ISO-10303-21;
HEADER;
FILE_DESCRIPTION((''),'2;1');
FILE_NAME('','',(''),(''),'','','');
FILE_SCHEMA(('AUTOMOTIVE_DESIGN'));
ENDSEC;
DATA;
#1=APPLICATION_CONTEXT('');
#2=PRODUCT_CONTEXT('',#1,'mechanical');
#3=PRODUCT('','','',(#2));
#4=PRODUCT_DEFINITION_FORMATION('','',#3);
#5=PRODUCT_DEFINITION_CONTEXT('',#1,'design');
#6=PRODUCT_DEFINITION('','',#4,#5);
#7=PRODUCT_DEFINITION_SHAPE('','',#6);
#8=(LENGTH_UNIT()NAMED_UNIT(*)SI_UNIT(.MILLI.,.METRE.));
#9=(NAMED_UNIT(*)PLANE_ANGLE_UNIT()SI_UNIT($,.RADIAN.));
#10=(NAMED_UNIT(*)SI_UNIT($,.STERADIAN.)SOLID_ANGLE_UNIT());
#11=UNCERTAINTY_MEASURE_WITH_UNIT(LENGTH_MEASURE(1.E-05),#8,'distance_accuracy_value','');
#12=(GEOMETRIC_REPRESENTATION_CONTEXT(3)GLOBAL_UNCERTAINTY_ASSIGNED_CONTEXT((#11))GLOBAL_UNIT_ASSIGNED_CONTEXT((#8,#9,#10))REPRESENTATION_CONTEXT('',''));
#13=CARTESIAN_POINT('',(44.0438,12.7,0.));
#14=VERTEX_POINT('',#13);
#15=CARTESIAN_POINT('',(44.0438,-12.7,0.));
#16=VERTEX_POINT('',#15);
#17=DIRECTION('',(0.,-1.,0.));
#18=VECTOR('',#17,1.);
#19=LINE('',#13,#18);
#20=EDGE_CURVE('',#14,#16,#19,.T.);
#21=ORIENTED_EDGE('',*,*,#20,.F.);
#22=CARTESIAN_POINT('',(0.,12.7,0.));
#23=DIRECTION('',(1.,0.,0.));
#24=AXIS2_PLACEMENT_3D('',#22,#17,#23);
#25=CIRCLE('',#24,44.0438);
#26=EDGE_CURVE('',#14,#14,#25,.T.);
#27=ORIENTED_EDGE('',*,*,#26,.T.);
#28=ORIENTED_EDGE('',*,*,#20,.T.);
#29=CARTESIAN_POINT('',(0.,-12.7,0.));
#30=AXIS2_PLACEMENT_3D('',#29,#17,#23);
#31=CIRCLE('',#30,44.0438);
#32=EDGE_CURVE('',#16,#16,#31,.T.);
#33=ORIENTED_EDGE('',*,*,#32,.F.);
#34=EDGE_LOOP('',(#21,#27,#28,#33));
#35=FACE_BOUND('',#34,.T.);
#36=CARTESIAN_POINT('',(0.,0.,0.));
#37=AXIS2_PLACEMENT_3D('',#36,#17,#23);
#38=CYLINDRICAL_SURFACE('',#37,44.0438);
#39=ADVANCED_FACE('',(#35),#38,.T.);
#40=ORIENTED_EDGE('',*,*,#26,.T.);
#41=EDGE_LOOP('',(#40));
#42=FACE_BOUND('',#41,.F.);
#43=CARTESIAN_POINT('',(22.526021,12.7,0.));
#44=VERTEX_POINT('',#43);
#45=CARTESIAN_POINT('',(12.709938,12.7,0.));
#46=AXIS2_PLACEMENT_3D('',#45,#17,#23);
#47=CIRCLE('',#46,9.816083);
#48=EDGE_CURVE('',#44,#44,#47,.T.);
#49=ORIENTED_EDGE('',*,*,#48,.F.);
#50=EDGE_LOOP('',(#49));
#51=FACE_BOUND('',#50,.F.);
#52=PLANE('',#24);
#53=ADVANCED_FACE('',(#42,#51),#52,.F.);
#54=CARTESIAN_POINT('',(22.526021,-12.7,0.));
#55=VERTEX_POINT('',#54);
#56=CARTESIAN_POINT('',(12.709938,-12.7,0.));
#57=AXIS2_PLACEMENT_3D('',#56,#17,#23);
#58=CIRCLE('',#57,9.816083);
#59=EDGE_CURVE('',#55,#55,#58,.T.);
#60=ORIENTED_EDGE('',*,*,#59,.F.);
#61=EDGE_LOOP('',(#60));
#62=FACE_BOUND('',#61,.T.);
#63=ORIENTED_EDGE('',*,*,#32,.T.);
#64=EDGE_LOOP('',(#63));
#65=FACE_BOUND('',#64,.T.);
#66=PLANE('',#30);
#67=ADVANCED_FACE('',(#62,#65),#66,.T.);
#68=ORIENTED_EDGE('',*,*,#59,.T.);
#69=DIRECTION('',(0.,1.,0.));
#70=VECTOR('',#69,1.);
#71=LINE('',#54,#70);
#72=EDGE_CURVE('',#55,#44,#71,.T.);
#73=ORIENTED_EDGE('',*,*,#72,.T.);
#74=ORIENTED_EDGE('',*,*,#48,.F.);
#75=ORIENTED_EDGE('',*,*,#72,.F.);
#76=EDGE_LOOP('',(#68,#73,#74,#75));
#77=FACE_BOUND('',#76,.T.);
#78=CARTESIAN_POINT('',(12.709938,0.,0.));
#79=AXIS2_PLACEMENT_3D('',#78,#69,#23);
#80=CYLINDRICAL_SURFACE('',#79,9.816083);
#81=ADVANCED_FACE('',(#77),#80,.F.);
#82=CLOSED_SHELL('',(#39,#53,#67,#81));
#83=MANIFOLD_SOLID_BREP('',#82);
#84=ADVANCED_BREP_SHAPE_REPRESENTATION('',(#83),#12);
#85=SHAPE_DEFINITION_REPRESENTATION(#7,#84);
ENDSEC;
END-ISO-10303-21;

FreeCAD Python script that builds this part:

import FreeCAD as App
import Part
import Sketcher
from FreeCAD import Vector
Q = App.Units.Quantity

doc = App.newDocument("Part")
body = doc.addObject("PartDesign::Body", "Body")

sketch1 = body.newObject("Sketcher::SketchObject", "Sketch")
sketch1.AttachmentSupport = (doc.getObject("XZ_Plane"), [""])
sketch1.MapMode = "FlatFace"
sketch1.addGeometry([
    Part.Circle(Vector(0, 0, 0), Vector(0, 0, 1), 44),
    Part.Circle(Vector(13, 0, 0), Vector(0, 0, 1), 10),
], False)
sketch1.addConstraint([
    Sketcher.Constraint("Coincident", 0, 3, -1, 1),
    Sketcher.Constraint("PointOnObject", 1, 3, -1),
    Sketcher.Constraint("Diameter", 0, 88.0876),
    Sketcher.Constraint("Diameter", 1, 19.632166),
    Sketcher.Constraint("DistanceX", -1, 1, 1, 3, 12.709938),
])
pad1 = body.newObject("PartDesign::Pad", "Pad")
pad1.Profile = sketch1
pad1.Length = Q("1 in")
pad1.Midplane = True

doc.recompute()
